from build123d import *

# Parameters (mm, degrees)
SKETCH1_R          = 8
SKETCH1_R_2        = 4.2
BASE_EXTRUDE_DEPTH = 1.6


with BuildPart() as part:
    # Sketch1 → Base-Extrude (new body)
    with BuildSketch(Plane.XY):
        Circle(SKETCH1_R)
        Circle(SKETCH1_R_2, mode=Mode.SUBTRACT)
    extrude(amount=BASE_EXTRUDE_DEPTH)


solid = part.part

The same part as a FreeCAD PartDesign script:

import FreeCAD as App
import Part
import Sketcher

V = App.Vector
Q = App.Units.Quantity

doc = App.newDocument("Part")
body = doc.addObject("PartDesign::Body", "Body")

# Sketch on XY plane
sketch1 = body.newObject("Sketcher::SketchObject", "Sketch")
sketch1.AttachmentSupport = (doc.getObject("XY_Plane"), [""])
sketch1.MapMode = "FlatFace"
sketch1.addGeometry([
    Part.Circle(V(0, 0, 0), V(0, 0, 1), 8),
    Part.Circle(V(0, 0, 0), V(0, 0, 1), 4.2),
], False)
sketch1.addConstraint([
    Sketcher.Constraint("Coincident", 0, 3, -1, 1),
    Sketcher.Constraint("Coincident", 1, 3, -1, 1),
    Sketcher.Constraint("Diameter", 0, Q("16 mm")),
    Sketcher.Constraint("Diameter", 1, Q("8.4 mm")),
])
pad1 = body.newObject("PartDesign::Pad", "Pad")
pad1.Profile = sketch1
pad1.Length = 1.6

doc.recompute()
